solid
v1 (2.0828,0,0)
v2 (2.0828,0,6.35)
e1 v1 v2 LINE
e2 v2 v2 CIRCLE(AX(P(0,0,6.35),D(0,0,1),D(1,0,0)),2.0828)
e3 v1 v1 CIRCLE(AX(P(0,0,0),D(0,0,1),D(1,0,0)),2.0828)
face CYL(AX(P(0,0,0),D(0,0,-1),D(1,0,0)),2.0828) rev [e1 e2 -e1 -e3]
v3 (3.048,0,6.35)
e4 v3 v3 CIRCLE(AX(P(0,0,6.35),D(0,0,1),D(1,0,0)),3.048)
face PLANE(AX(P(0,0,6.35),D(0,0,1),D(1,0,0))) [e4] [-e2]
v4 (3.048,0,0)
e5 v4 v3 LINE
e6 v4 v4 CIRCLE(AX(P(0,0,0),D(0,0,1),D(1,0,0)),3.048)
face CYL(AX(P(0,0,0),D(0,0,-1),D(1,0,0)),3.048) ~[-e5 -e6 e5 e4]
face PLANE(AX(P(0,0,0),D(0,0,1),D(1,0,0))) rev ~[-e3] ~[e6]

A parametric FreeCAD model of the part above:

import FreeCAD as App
import Part
import Sketcher
Q = App.Units.Quantity

doc = App.newDocument("Part")
params = doc.addObject("Spreadsheet::Sheet", "Params")
for row, (alias, value) in enumerate([
    ("sketch1_diameter", "0.24 in"),
    ("sketch1_diameter2", "0.164 in"),
    ("pad1_length", "0.25 in"),
], start=1):
    params.set(f"A{row}", alias)
    params.set(f"B{row}", "=" + value)
    params.setAlias(f"B{row}", alias)

body = doc.addObject("PartDesign::Body", "Body")

# Sketch on XY plane
sketch1 = body.newObject("Sketcher::SketchObject", "Sketch")
sketch1.AttachmentSupport = (doc.getObject("XY_Plane"), [""])
sketch1.MapMode = "FlatFace"
sketch1.addGeometry([
    Part.Circle(App.Vector(0, 0, 0), App.Vector(0, 0, 1), 3),
    Part.Circle(App.Vector(0, 0, 0), App.Vector(0, 0, 1), 2.1),
], False)
sketch1.addConstraint([
    Sketcher.Constraint("Coincident", 0, 3, -1, 1),
    Sketcher.Constraint("Coincident", 1, 3, -1, 1),
    Sketcher.Constraint("Diameter", 0, Q("0.24 in")),
    Sketcher.Constraint("Diameter", 1, Q("0.164 in")),
])
sketch1.setExpression("Constraints[2]", "Params.sketch1_diameter")
sketch1.setExpression("Constraints[3]", "Params.sketch1_diameter2")
pad1 = body.newObject("PartDesign::Pad", "Pad")
pad1.Profile = sketch1
pad1.setExpression("Length", "Params.pad1_length")

doc.recompute()
